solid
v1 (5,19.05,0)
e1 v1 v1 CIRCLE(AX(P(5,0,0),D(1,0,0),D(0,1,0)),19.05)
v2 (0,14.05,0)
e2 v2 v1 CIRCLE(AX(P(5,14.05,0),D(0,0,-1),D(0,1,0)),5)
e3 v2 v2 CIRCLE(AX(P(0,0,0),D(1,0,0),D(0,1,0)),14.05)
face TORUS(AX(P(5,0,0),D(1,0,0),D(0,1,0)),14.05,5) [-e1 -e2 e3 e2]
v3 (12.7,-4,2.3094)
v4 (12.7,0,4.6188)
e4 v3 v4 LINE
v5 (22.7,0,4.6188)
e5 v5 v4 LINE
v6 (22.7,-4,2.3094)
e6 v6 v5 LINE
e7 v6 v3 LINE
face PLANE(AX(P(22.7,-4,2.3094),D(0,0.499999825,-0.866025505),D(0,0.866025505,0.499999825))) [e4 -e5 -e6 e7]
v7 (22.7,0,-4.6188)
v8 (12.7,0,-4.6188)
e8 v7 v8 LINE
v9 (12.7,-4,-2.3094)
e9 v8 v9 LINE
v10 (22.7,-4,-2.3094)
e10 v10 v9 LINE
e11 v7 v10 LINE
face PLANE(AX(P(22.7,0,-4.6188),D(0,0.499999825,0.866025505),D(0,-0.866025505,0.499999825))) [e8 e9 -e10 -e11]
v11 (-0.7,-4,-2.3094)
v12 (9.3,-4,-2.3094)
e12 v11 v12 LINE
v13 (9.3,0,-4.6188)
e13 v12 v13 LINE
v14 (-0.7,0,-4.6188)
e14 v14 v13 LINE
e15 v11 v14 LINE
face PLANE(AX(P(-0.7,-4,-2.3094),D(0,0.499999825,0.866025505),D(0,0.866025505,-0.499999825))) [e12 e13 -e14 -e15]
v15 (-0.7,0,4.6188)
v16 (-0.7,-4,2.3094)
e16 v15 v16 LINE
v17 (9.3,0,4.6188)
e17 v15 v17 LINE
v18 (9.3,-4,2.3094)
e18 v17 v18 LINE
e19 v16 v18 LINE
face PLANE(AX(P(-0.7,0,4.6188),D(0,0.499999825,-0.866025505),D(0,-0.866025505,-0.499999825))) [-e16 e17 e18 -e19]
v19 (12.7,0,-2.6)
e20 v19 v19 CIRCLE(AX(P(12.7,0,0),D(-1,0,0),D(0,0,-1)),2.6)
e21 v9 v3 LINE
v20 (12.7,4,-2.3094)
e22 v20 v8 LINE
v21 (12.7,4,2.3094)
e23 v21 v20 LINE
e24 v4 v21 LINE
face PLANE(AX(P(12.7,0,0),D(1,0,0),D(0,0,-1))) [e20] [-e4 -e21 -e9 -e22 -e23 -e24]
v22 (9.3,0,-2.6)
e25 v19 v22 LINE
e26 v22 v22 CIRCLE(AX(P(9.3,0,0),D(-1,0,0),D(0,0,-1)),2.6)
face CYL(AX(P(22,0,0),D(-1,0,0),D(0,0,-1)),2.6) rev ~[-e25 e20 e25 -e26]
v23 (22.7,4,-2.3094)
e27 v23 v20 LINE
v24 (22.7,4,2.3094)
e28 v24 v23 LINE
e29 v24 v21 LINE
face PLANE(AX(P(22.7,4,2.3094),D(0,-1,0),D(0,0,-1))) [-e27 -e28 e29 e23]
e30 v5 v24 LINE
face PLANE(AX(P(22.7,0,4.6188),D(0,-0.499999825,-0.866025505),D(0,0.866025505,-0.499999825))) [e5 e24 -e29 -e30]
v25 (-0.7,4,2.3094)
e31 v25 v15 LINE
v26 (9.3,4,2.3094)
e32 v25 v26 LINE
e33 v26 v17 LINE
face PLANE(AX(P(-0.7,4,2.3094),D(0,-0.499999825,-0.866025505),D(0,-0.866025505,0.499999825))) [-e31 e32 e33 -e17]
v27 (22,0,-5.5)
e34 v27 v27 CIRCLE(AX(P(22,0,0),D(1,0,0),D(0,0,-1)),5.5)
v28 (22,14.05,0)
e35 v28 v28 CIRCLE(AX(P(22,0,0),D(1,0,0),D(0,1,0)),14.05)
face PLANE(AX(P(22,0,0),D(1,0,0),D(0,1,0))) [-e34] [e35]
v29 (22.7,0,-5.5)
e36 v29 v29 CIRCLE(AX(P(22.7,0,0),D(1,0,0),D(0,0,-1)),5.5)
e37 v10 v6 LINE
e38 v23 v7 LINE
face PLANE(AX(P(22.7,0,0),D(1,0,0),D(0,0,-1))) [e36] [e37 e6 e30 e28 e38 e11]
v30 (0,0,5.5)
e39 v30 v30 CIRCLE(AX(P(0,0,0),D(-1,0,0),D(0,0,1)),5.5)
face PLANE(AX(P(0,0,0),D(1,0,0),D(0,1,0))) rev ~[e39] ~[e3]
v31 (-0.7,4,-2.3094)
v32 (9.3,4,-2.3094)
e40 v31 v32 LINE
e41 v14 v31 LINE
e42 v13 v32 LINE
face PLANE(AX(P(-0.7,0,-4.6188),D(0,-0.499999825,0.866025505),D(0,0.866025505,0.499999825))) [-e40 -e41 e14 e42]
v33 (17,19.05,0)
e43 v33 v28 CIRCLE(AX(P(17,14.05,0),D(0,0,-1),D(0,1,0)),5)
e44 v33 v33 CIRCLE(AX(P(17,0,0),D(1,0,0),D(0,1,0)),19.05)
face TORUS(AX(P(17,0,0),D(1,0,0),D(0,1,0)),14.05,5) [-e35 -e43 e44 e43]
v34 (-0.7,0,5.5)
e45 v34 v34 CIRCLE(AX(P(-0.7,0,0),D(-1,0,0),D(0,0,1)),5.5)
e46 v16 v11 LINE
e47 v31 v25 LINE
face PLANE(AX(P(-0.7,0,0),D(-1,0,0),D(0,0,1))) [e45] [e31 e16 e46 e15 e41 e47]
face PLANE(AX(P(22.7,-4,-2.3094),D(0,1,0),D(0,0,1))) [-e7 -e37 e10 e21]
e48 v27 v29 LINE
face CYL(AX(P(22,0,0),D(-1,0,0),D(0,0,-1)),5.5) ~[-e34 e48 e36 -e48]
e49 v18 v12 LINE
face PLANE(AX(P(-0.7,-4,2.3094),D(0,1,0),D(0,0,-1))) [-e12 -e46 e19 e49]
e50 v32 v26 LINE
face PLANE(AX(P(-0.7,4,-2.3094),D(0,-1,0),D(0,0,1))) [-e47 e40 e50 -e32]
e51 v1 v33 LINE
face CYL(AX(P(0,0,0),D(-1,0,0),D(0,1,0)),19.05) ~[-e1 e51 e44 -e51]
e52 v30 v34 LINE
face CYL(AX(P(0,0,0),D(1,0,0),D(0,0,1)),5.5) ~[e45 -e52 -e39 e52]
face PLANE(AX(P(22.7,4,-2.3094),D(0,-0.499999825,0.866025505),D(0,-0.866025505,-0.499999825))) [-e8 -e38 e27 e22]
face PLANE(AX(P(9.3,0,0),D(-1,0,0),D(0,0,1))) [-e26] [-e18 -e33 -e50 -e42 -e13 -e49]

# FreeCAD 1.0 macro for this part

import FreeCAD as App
import Part
import Sketcher
from FreeCAD import Vector
Q = App.Units.Quantity


def edges_at(feature, points):
    """Names of the edges that pass closest to the given points."""
    edges = feature.Shape.Edges
    near = lambda p: min(range(len(edges)), key=lambda i: edges[i].distToShape(Part.Vertex(*p))[0])
    return sorted({f"Edge{near(p) + 1}" for p in points})

doc = App.newDocument("Part")
body = doc.addObject("PartDesign::Body", "Body")

# Sketch on YZ plane
sketch1 = body.newObject("Sketcher::SketchObject", "Sketch")
sketch1.AttachmentSupport = (doc.getObject("YZ_Plane"), [""])
sketch1.MapMode = "FlatFace"
sketch1.addGeometry(Part.Circle(Vector(0, 0, 0), Vector(0, 0, 1), 19), False)
sketch1.addConstraint([
    Sketcher.Constraint("Coincident", 0, 3, -1, 1),
    Sketcher.Constraint("Diameter", 0, Q("38.1 mm")),
])
pad1 = body.newObject("PartDesign::Pad", "Pad")
pad1.Profile = sketch1
pad1.Length = 22

# Sketch on YZ plane
sketch2 = body.newObject("Sketcher::SketchObject", "Sketch001")
sketch2.AttachmentSupport = (doc.getObject("YZ_Plane"), [""])
sketch2.MapMode = "FlatFace"
sketch2.AttachmentOffset = App.Placement(Vector(0, 0, 22), App.Rotation())
sketch2.addGeometry(Part.Circle(Vector(0, 0, 0), Vector(0, 0, 1), 2.6), False)
sketch2.addConstraint([
    Sketcher.Constraint("Coincident", 0, 3, -1, 1),
    Sketcher.Constraint("Diameter", 0, Q("5.2 mm")),
])
doc.recompute()
hole = body.newObject("PartDesign::Hole", "Hole")
hole.Profile = sketch2
hole.ThreadType = "None"
hole.Diameter = 5.2
hole.DepthType = "ThroughAll"

# Sketch on YZ plane
sketch3 = body.newObject("Sketcher::SketchObject", "Sketch002")
sketch3.AttachmentSupport = (doc.getObject("YZ_Plane"), [""])
sketch3.MapMode = "FlatFace"
sketch3.AttachmentOffset = App.Placement(Vector(0, 0, 22), App.Rotation())
sketch3.addGeometry(Part.Circle(Vector(0, 0, 0), Vector(0, 0, 1), 6), False)
sketch3.addConstraint([
    Sketcher.Constraint("Coincident", 0, 3, -1, 1),
    Sketcher.Constraint("Diameter", 0, Q("11 mm")),
])
pad2 = body.newObject("PartDesign::Pad", "Pad001")
pad2.Profile = sketch3
pad2.Length = 0.7

# Sketch on YZ plane
sketch4 = body.newObject("Sketcher::SketchObject", "Sketch003")
sketch4.AttachmentSupport = (doc.getObject("YZ_Plane"), [""])
sketch4.MapMode = "FlatFace"
sketch4.addGeometry(Part.Circle(Vector(0, 0, 0), Vector(0, 0, 1), 6), False)
sketch4.addConstraint([
    Sketcher.Constraint("Coincident", 0, 3, -1, 1),
    Sketcher.Constraint("Diameter", 0, Q("11 mm")),
])
pad3 = body.newObject("PartDesign::Pad", "Pad002")
pad3.Profile = sketch4
pad3.Length = 0.7
pad3.Reversed = True
doc.recompute()

fillet = body.newObject("PartDesign::Fillet", "Fillet")
fillet.Base = (pad3, edges_at(pad3, [(0, -19.05, 0)]))
fillet.Radius = 5
doc.recompute()

fillet2 = body.newObject("PartDesign::Fillet", "Fillet001")
fillet2.Base = (fillet, edges_at(fillet, [(22, -19.05, 0)]))
fillet2.Radius = 5

# Sketch on YZ plane
sketch5 = body.newObject("Sketcher::SketchObject", "Sketch004")
sketch5.AttachmentSupport = (doc.getObject("YZ_Plane"), [""])
sketch5.MapMode = "FlatFace"
sketch5.AttachmentOffset = App.Placement(Vector(0, 0, -0.7), App.Rotation())
sketch5.addGeometry([
    Part.LineSegment(Vector(0, -4.6, 0), Vector(-4, -2.3, 0)),  # 0
    Part.LineSegment(Vector(-4, -2.3, 0), Vector(-4, 2.3, 0)),  # 1
    Part.LineSegment(Vector(-4, 2.3, 0), Vector(0, 4.6, 0)),  # 2
    Part.LineSegment(Vector(0, 4.6, 0), Vector(4, 2.3, 0)),  # 3
    Part.LineSegment(Vector(4, 2.3, 0), Vector(4, -2.3, 0)),  # 4
    Part.LineSegment(Vector(4, -2.3, 0), Vector(0, -4.6, 0)),  # 5
], False)
sketch5.addConstraint([
    Sketcher.Constraint("Coincident", 0, 2, 1, 1),
    Sketcher.Constraint("Coincident", 1, 2, 2, 1),
    Sketcher.Constraint("Coincident", 2, 2, 3, 1),
    Sketcher.Constraint("Coincident", 3, 2, 4, 1),
    Sketcher.Constraint("Coincident", 4, 2, 5, 1),
    Sketcher.Constraint("Coincident", 5, 2, 0, 1),
    Sketcher.Constraint("Vertical", 1),
    Sketcher.Constraint("Vertical", 4),
    Sketcher.Constraint("Symmetric", 0, 2, 3, 2, -1, 1),
    Sketcher.Constraint("Symmetric", 2, 2, 5, 2, -1, 1),
    Sketcher.Constraint("PointOnObject", 2, 2, -2),
    Sketcher.Constraint("Parallel", 2, 5),
    Sketcher.Constraint("Horizontal", 1, 2, 3, 2),
    Sketcher.Constraint("Angle", 0, Q("150 deg")),
    Sketcher.Constraint("DistanceX", 0, 2, -1, 1, Q("4 mm")),
    Sketcher.Constraint("DistanceY", 1, 1, 1, 2, Q("4.6188 mm")),
])
pocket1 = body.newObject("PartDesign::Pocket", "Pocket")
pocket1.Profile = sketch5
pocket1.Length = 10
pocket1.Reversed = True

# Sketch on YZ plane
sketch6 = body.newObject("Sketcher::SketchObject", "Sketch005")
sketch6.AttachmentSupport = (doc.getObject("YZ_Plane"), [""])
sketch6.MapMode = "FlatFace"
sketch6.AttachmentOffset = App.Placement(Vector(0, 0, 22.7), App.Rotation())
sketch6.addGeometry([
    Part.LineSegment(Vector(0, -4.6, 0), Vector(4, -2.3, 0)),  # 0
    Part.LineSegment(Vector(4, -2.3, 0), Vector(4, 2.3, 0)),  # 1
    Part.LineSegment(Vector(4, 2.3, 0), Vector(0, 4.6, 0)),  # 2
    Part.LineSegment(Vector(0, 4.6, 0), Vector(-4, 2.3, 0)),  # 3
    Part.LineSegment(Vector(-4, 2.3, 0), Vector(-4, -2.3, 0)),  # 4
    Part.LineSegment(Vector(-4, -2.3, 0), Vector(0, -4.6, 0)),  # 5
], False)
sketch6.addConstraint([
    Sketcher.Constraint("Coincident", 0, 2, 1, 1),
    Sketcher.Constraint("Coincident", 1, 2, 2, 1),
    Sketcher.Constraint("Coincident", 2, 2, 3, 1),
    Sketcher.Constraint("Coincident", 3, 2, 4, 1),
    Sketcher.Constraint("Coincident", 4, 2, 5, 1),
    Sketcher.Constraint("Coincident", 5, 2, 0, 1),
    Sketcher.Constraint("Vertical", 1),
    Sketcher.Constraint("Vertical", 4),
    Sketcher.Constraint("Symmetric", 0, 2, 3, 2, -1, 1),
    Sketcher.Constraint("Symmetric", 2, 2, 5, 2, -1, 1),
    Sketcher.Constraint("PointOnObject", 2, 2, -2),
    Sketcher.Constraint("Parallel", 2, 5),
    Sketcher.Constraint("Horizontal", 1, 2, 3, 2),
    Sketcher.Constraint("Angle", 0, Q("30 deg")),
    Sketcher.Constraint("DistanceX", -1, 1, 0, 2, Q("4 mm")),
    Sketcher.Constraint("DistanceY", 1, 1, 1, 2, Q("4.6188 mm")),
])
pocket2 = body.newObject("PartDesign::Pocket", "Pocket001")
pocket2.Profile = sketch6
pocket2.Length = 10

doc.recompute()
